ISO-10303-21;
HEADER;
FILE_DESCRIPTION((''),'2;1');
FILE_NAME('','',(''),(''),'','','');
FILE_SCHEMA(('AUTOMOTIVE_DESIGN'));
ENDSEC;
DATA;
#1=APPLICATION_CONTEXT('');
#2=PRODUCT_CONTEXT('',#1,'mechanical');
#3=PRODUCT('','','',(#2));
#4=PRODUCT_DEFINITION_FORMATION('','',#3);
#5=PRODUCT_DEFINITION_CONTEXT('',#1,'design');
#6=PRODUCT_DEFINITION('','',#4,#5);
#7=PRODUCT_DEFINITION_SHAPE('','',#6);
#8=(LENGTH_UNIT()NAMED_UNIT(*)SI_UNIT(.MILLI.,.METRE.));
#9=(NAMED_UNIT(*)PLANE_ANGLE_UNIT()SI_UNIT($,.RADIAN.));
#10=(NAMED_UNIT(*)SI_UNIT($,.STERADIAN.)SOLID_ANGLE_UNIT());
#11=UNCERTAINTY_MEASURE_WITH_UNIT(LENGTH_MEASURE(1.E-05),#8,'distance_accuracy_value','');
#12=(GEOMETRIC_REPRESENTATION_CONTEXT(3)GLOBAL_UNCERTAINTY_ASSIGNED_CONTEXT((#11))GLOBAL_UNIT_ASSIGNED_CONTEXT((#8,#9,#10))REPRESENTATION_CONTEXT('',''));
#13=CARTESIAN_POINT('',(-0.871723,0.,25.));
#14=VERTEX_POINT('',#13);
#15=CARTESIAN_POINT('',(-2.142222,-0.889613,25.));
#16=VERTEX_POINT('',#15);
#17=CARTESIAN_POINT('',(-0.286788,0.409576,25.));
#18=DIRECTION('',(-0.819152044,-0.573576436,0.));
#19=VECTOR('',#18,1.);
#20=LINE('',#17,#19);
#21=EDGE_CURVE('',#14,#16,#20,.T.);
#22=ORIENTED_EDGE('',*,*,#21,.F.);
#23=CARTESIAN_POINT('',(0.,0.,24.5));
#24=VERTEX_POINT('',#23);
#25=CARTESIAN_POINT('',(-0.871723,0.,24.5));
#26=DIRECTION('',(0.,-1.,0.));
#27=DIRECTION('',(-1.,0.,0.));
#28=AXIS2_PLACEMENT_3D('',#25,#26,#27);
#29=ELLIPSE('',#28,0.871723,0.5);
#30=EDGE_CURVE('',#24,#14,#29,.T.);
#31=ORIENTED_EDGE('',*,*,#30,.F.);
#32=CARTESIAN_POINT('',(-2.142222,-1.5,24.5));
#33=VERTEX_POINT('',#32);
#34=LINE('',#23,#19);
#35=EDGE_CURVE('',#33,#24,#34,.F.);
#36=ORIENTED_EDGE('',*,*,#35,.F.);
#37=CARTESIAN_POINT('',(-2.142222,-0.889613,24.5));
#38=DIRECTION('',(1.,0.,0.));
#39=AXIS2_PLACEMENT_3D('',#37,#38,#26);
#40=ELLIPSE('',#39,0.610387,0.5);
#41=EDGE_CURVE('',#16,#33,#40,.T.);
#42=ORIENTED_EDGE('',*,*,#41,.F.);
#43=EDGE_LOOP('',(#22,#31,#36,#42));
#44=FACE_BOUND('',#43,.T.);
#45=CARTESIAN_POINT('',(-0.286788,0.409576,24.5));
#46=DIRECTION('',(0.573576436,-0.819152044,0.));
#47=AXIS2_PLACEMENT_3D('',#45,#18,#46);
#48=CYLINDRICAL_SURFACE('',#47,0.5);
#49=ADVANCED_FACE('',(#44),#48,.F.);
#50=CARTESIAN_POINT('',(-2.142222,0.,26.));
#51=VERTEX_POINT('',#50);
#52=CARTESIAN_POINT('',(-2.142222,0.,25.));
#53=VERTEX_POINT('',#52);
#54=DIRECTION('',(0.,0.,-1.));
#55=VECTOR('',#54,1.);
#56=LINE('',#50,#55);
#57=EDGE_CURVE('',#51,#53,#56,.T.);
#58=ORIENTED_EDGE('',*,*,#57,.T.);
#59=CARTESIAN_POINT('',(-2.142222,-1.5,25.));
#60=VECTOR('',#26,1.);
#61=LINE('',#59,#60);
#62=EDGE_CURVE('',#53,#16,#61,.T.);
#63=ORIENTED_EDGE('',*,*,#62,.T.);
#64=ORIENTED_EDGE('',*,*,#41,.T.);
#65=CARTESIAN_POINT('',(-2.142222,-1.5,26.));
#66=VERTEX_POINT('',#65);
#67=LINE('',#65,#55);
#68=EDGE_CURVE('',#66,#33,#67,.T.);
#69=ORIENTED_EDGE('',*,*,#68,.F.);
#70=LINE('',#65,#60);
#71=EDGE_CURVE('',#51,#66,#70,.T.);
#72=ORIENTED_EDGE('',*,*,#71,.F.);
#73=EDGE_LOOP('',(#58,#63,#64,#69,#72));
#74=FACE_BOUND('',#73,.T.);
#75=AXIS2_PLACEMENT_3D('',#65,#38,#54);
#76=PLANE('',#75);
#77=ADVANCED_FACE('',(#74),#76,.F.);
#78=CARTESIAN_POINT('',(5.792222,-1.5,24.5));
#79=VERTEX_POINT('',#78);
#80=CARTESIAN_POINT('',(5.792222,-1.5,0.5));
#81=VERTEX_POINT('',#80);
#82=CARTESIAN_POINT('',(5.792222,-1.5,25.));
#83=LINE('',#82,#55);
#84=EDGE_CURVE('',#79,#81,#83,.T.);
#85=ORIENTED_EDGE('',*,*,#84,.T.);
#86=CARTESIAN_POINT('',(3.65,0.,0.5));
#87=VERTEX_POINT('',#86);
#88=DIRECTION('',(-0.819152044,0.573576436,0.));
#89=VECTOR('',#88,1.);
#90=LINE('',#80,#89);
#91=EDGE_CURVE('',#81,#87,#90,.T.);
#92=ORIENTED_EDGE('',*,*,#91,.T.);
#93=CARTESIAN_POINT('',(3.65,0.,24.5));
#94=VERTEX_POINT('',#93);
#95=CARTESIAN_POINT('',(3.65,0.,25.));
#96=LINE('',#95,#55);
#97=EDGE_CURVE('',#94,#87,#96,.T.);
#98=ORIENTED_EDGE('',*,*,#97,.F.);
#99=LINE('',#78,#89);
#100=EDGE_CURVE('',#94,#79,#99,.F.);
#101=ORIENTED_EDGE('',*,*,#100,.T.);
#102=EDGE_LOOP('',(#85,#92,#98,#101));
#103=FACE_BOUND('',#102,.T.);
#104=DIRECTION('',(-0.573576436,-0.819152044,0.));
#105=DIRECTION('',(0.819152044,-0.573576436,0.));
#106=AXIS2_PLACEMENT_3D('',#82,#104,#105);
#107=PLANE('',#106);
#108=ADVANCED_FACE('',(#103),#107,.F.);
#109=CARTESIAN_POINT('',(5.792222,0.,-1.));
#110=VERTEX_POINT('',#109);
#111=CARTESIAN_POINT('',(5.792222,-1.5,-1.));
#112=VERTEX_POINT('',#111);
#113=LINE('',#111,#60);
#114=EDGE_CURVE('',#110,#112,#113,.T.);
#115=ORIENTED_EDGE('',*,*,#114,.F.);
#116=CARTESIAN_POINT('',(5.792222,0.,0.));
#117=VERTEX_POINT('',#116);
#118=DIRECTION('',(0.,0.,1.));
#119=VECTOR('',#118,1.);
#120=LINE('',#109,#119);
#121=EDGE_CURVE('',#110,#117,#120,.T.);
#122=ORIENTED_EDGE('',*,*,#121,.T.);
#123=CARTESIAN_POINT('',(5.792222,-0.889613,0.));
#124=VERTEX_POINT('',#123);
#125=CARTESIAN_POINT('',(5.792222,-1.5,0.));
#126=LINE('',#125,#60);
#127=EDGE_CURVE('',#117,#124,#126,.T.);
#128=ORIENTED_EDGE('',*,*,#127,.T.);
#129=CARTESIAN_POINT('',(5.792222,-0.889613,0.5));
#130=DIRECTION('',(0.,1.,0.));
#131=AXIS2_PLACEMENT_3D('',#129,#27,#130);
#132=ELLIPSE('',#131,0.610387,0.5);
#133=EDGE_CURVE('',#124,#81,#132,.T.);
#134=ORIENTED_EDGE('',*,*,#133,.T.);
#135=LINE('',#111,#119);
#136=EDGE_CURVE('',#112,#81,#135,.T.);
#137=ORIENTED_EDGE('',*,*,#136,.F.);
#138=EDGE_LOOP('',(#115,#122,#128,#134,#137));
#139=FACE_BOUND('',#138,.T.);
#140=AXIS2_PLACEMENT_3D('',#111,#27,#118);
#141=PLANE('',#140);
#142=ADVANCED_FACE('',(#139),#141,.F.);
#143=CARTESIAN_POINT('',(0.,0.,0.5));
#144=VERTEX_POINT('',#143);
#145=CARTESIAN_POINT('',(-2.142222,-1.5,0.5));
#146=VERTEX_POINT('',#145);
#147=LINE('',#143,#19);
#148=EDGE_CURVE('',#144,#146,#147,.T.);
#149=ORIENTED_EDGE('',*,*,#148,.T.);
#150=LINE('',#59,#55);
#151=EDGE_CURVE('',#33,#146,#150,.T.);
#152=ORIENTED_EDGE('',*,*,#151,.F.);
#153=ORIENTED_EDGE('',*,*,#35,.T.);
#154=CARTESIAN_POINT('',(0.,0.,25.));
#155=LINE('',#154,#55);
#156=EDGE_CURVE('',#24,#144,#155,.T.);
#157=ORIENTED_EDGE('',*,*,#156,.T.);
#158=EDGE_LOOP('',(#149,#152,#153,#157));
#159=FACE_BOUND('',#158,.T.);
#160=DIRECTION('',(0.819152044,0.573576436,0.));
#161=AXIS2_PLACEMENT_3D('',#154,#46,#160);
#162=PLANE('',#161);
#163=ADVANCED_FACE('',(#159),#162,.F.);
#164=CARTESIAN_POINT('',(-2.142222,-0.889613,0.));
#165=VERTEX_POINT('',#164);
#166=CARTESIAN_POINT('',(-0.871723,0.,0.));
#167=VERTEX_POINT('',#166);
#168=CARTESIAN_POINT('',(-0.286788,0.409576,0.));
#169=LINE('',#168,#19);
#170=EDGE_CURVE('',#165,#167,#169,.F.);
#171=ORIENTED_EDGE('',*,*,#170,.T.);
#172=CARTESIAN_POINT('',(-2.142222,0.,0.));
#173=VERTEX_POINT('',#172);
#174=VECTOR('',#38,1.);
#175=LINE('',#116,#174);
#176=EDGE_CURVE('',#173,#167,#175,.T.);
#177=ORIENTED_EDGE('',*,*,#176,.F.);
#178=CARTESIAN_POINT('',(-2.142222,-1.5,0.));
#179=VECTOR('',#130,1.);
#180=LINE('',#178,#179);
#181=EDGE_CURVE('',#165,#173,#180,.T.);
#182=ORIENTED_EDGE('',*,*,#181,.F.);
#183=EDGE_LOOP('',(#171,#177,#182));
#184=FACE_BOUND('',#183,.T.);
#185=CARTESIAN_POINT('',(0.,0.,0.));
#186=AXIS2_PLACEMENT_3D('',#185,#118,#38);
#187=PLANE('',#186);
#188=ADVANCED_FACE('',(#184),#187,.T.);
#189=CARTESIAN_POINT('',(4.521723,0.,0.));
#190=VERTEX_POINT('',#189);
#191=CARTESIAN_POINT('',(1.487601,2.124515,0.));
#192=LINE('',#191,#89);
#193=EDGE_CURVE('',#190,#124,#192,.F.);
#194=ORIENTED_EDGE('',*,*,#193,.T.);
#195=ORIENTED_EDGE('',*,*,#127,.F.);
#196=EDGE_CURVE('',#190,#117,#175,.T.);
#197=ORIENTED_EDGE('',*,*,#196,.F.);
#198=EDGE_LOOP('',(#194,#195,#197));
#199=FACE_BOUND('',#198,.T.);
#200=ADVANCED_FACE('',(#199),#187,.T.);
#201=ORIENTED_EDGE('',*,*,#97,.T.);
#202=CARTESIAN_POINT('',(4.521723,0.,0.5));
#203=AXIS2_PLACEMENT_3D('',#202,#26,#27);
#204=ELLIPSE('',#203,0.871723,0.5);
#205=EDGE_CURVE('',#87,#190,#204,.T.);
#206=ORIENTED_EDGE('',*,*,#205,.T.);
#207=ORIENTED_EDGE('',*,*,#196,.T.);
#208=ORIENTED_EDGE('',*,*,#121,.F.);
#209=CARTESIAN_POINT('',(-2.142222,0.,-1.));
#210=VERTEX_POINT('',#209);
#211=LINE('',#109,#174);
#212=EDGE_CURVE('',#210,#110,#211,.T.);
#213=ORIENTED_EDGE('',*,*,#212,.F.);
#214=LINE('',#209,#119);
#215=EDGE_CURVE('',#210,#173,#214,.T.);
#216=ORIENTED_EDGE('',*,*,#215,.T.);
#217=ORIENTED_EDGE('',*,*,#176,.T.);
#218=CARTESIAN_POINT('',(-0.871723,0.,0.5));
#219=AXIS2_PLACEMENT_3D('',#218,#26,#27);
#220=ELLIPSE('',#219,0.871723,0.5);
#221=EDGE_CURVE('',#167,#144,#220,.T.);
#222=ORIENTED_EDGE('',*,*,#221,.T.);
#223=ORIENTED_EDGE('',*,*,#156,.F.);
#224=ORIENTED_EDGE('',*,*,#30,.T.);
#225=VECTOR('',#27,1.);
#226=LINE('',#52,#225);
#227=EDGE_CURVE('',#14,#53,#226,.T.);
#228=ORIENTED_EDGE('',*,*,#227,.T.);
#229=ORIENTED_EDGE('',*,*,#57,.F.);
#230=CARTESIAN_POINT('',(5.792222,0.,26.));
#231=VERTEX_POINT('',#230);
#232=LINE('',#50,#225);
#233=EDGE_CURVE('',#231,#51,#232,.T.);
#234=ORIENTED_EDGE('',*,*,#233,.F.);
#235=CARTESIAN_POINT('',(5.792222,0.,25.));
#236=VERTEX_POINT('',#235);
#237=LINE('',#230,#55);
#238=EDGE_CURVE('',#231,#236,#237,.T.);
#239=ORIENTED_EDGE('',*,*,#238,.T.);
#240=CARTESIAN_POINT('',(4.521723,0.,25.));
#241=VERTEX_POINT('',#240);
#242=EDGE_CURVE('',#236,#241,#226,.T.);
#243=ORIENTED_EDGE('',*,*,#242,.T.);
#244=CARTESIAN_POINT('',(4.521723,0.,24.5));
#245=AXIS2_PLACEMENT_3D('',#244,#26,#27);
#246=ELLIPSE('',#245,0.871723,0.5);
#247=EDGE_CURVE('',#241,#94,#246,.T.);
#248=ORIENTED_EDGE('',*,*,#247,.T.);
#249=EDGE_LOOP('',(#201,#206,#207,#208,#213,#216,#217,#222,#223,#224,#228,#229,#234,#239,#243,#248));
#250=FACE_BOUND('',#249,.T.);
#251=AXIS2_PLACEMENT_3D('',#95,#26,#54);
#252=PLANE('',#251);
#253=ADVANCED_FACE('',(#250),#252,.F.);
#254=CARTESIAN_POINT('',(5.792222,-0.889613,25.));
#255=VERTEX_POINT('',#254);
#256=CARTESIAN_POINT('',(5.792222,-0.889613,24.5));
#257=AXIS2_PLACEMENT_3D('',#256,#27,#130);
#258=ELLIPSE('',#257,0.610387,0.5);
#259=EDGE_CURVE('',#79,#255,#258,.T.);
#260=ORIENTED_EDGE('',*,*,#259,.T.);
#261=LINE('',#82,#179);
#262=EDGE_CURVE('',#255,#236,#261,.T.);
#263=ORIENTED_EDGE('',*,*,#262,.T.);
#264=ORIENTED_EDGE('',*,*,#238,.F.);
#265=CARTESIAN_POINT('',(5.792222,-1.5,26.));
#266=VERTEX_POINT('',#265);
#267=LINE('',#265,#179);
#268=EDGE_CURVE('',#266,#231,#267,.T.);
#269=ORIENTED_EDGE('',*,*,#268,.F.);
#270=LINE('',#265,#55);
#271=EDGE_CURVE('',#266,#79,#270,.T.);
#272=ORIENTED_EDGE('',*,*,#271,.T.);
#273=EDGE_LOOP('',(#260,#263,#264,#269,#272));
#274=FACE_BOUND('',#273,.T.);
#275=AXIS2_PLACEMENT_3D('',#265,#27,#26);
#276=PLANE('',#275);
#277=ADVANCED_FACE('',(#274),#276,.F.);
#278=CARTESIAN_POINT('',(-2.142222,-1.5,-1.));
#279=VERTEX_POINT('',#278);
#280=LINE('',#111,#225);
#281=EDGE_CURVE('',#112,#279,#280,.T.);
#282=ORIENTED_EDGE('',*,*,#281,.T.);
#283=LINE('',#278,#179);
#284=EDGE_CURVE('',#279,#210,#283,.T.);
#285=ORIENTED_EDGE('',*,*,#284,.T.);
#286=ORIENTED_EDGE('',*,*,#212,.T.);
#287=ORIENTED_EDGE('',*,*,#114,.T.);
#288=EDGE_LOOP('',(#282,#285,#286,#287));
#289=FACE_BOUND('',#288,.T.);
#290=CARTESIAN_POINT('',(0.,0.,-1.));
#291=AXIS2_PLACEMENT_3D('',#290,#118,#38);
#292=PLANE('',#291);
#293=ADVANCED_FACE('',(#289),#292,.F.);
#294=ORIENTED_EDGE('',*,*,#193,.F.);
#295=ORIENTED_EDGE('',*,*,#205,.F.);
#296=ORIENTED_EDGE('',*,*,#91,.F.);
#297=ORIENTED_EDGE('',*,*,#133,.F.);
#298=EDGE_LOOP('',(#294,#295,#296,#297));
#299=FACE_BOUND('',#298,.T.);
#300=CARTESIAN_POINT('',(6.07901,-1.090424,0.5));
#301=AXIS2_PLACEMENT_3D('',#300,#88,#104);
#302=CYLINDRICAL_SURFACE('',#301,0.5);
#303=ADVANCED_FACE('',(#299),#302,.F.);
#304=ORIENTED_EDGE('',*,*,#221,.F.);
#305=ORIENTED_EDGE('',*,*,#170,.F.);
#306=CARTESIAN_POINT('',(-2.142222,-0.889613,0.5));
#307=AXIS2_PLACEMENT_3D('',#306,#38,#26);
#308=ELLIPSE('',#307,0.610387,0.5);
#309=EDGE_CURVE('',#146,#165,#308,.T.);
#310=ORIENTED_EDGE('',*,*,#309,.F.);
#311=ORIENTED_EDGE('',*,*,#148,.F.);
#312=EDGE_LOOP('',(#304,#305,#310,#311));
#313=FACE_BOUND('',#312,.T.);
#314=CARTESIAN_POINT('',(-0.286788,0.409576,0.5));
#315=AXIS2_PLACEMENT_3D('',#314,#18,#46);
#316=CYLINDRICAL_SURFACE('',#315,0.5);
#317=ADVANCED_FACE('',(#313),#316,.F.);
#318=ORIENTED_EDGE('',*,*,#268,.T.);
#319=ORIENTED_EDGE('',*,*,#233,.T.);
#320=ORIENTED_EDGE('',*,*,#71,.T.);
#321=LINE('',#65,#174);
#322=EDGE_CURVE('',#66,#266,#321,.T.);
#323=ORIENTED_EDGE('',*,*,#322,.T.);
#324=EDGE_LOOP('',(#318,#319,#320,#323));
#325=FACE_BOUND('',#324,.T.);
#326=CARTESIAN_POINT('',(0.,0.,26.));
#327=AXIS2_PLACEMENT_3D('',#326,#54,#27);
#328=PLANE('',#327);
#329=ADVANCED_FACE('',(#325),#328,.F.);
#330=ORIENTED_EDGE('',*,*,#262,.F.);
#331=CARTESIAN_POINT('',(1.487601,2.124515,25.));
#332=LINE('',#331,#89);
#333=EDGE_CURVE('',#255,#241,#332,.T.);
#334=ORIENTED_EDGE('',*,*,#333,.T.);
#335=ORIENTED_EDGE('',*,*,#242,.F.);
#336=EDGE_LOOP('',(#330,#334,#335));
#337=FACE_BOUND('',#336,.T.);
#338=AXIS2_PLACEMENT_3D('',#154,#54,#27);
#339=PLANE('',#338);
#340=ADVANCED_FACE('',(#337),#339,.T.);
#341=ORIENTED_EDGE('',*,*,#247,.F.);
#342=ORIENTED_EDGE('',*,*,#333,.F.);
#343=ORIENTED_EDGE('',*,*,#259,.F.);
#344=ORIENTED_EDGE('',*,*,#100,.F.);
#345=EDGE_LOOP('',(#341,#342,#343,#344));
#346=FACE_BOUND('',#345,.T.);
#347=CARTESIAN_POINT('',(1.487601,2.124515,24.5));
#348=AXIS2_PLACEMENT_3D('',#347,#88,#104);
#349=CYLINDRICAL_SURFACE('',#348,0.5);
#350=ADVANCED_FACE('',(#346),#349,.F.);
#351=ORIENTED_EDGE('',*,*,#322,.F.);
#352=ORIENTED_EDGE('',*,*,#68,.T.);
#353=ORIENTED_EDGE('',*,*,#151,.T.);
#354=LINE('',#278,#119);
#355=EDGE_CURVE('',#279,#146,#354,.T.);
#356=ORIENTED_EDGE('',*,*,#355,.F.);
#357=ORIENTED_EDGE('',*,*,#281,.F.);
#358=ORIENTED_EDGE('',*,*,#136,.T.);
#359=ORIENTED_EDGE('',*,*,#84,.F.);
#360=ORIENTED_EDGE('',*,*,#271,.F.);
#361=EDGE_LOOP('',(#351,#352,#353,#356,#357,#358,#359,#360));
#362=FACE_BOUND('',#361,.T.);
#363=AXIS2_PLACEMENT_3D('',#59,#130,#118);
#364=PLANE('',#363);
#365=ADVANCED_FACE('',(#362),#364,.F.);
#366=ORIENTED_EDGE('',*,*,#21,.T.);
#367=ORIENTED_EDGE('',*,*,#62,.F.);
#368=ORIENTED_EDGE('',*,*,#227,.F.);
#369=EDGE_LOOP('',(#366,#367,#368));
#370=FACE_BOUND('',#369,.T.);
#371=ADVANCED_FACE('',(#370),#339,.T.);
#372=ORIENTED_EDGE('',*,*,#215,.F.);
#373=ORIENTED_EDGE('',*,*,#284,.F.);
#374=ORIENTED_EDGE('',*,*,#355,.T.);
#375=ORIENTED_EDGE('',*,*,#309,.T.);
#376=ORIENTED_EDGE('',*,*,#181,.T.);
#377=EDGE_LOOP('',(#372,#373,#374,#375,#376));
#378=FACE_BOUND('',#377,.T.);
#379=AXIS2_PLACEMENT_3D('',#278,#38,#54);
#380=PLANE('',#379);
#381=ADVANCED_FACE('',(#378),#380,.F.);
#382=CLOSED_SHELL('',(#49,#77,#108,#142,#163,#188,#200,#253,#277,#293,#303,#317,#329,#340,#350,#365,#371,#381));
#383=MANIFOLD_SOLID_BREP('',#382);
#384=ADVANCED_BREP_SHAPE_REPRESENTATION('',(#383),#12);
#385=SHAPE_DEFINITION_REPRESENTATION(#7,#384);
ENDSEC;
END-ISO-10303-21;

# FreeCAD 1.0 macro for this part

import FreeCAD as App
import Part
import Sketcher

V = App.Vector
Q = App.Units.Quantity


def edges_at(feature, points):
    """Names of the edges that pass closest to the given points."""
    edges = feature.Shape.Edges
    near = lambda p: min(range(len(edges)), key=lambda i: edges[i].distToShape(Part.Vertex(*p))[0])
    return sorted({f"Edge{near(p) + 1}" for p in points})

doc = App.newDocument("Part")
params = doc.addObject("Spreadsheet::Sheet", "Params")
for row, (alias, value) in enumerate([
    ("sketch1_width", "3.65 mm"),
    ("pad1_length", "25 mm"),
    ("sketch2_height", "1.5 mm"),
    ("pad2_length", "1 mm"),
    ("sketch3_height", "1.5 mm"),
    ("pad3_length", "1 mm"),
    ("fillet_radius", "0.5 mm"),
], start=1):
    params.set(f"A{row}", alias)
    params.set(f"B{row}", "=" + value)
    params.setAlias(f"B{row}", alias)

body = doc.addObject("PartDesign::Body", "Body")

# Sketch on XY plane
sketch1 = body.newObject("Sketcher::SketchObject", "Sketch")
sketch1.AttachmentSupport = (doc.getObject("XY_Plane"), [""])
sketch1.MapMode = "FlatFace"
sketch1.addGeometry(Part.LineSegment(V(0, 0, 0), V(-2.1, -1.5, 0)), False)
sketch1.addGeometry(Part.LineSegment(V(-2.1, -1.5, 0), V(5.8, -1.5, 0)), False)
sketch1.addGeometry(Part.LineSegment(V(5.8, -1.5, 0), V(3.6, 0, 0)), False)
sketch1.addGeometry(Part.LineSegment(V(3.6, 0, 0), V(0, 0, 0)), False)
sketch1.addConstraint(Sketcher.Constraint("Coincident", 0, 2, 1, 1))
sketch1.addConstraint(Sketcher.Constraint("Coincident", 1, 2, 2, 1))
sketch1.addConstraint(Sketcher.Constraint("Coincident", 2, 2, 3, 1))
sketch1.addConstraint(Sketcher.Constraint("Coincident", 3, 2, 0, 1))
sketch1.addConstraint(Sketcher.Constraint("Horizontal", 1))
sketch1.addConstraint(Sketcher.Constraint("Horizontal", 3))
sketch1.addConstraint(Sketcher.Constraint("Coincident", 3, 2, -1, 1))
sketch1.addConstraint(Sketcher.Constraint("Equal", 0, 2))
sketch1.addConstraint(Sketcher.Constraint("Angle", 0, Q("-145 deg")))
sketch1.addConstraint(Sketcher.Constraint("DistanceX", 3, 2, 3, 1, 3.65))
sketch1.addConstraint(Sketcher.Constraint("DistanceY", 0, 2, -1, 1, 1.5))
sketch1.setExpression("Constraints[9]", "Params.sketch1_width")
pad1 = body.newObject("PartDesign::Pad", "Pad")
pad1.Profile = sketch1
pad1.setExpression("Length", "Params.pad1_length")

# Sketch on XY plane
sketch2 = body.newObject("Sketcher::SketchObject", "Sketch001")
sketch2.AttachmentSupport = (doc.getObject("XY_Plane"), [""])
sketch2.MapMode = "FlatFace"
sketch2.AttachmentOffset = App.Placement(V(0, 0, 25), App.Rotation())
sketch2.addGeometry(Part.LineSegment(V(-2.1, 0, 0), V(-2.1, -1.5, 0)), False)
sketch2.addGeometry(Part.LineSegment(V(-2.1, -1.5, 0), V(5.8, -1.5, 0)), False)
sketch2.addGeometry(Part.LineSegment(V(5.8, -1.5, 0), V(5.8, 0, 0)), False)
sketch2.addGeometry(Part.LineSegment(V(5.8, 0, 0), V(-2.1, 0, 0)), False)
sketch2.addConstraint(Sketcher.Constraint("Coincident", 0, 2, 1, 1))
sketch2.addConstraint(Sketcher.Constraint("Coincident", 1, 2, 2, 1))
sketch2.addConstraint(Sketcher.Constraint("Coincident", 2, 2, 3, 1))
sketch2.addConstraint(Sketcher.Constraint("Coincident", 3, 2, 0, 1))
sketch2.addConstraint(Sketcher.Constraint("Vertical", 0))
sketch2.addConstraint(Sketcher.Constraint("Horizontal", 1))
sketch2.addConstraint(Sketcher.Constraint("Vertical", 2))
sketch2.addConstraint(Sketcher.Constraint("Horizontal", 3))
sketch2.addConstraint(Sketcher.Constraint("PointOnObject", 2, 2, -1))
sketch2.addConstraint(Sketcher.Constraint("DistanceY", 0, 2, 0, 1, 1.5))
sketch2.addConstraint(Sketcher.Constraint("DistanceX", 1, 1, 1, 2, 7.934444))
sketch2.addConstraint(Sketcher.Constraint("DistanceX", 0, 2, -1, 1, 2.142222))
sketch2.setExpression("Constraints[9]", "Params.sketch2_height")
pad2 = body.newObject("PartDesign::Pad", "Pad001")
pad2.Profile = sketch2
pad2.setExpression("Length", "Params.pad2_length")

# Sketch on XY plane
sketch3 = body.newObject("Sketcher::SketchObject", "Sketch002")
sketch3.AttachmentSupport = (doc.getObject("XY_Plane"), [""])
sketch3.MapMode = "FlatFace"
sketch3.addGeometry(Part.LineSegment(V(5.8, 0, 0), V(5.8, -1.5, 0)), False)
sketch3.addGeometry(Part.LineSegment(V(5.8, -1.5, 0), V(-2.1, -1.5, 0)), False)
sketch3.addGeometry(Part.LineSegment(V(-2.1, -1.5, 0), V(-2.1, 0, 0)), False)
sketch3.addGeometry(Part.LineSegment(V(-2.1, 0, 0), V(5.8, 0, 0)), False)
sketch3.addConstraint(Sketcher.Constraint("Coincident", 0, 2, 1, 1))
sketch3.addConstraint(Sketcher.Constraint("Coincident", 1, 2, 2, 1))
sketch3.addConstraint(Sketcher.Constraint("Coincident", 2, 2, 3, 1))
sketch3.addConstraint(Sketcher.Constraint("Coincident", 3, 2, 0, 1))
sketch3.addConstraint(Sketcher.Constraint("Vertical", 0))
sketch3.addConstraint(Sketcher.Constraint("Horizontal", 1))
sketch3.addConstraint(Sketcher.Constraint("Vertical", 2))
sketch3.addConstraint(Sketcher.Constraint("Horizontal", 3))
sketch3.addConstraint(Sketcher.Constraint("PointOnObject", 2, 2, -1))
sketch3.addConstraint(Sketcher.Constraint("DistanceY", 0, 2, 0, 1, 1.5))
sketch3.addConstraint(Sketcher.Constraint("DistanceX", 1, 2, 1, 1, 7.934444))
sketch3.addConstraint(Sketcher.Constraint("DistanceX", -1, 1, 0, 2, 5.792222))
sketch3.setExpression("Constraints[9]", "Params.sketch3_height")
pad3 = body.newObject("PartDesign::Pad", "Pad002")
pad3.Profile = sketch3
pad3.setExpression("Length", "Params.pad3_length")
pad3.Reversed = True
doc.recompute()

fillet = body.newObject("PartDesign::Fillet", "Fillet")
fillet.Base = (pad3, edges_at(pad3, [
    (4.721, -0.75, 25),
    (4.721, -0.75, 0),
    (-1.071, -0.75, 0),
    (-1.071, -0.75, 25),
]))
fillet.setExpression("Radius", "Params.fillet_radius")

doc.recompute()
